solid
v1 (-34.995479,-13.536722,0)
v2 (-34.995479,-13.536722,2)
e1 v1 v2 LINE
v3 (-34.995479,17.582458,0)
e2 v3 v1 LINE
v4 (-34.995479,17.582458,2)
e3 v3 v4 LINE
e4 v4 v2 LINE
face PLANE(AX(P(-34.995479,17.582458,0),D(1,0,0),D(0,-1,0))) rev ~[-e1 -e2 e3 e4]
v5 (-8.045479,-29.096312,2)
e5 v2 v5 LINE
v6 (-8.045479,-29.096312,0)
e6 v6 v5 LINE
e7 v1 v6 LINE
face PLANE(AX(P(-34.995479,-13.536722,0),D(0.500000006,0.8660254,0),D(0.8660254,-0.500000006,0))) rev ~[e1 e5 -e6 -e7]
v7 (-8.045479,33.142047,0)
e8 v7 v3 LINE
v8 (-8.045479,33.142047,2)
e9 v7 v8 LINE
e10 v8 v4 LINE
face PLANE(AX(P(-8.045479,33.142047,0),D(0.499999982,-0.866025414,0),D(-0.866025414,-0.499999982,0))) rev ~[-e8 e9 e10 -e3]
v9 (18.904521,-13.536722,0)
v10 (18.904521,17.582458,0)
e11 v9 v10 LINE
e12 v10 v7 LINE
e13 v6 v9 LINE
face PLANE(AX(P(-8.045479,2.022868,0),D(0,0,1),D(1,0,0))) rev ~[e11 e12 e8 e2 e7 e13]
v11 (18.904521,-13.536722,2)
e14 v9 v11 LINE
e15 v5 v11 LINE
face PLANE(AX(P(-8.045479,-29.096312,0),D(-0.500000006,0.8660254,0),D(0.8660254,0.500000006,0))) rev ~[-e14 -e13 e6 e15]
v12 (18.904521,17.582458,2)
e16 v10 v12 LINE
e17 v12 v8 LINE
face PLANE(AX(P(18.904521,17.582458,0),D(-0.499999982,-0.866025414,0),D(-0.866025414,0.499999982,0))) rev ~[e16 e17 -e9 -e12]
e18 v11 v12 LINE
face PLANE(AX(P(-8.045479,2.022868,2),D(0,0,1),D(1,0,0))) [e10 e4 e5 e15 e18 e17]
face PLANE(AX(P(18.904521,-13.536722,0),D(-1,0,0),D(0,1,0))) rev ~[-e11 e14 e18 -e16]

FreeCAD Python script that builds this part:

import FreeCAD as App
import Part
import Sketcher
Q = App.Units.Quantity


def add_polygon(sketch, points):
    """Adds a closed chain of lines whose ends are joined by coincident constraints."""
    first, n = sketch.GeometryCount, len(points)
    for a, b in zip(points, points[1:] + points[:1]):
        sketch.addGeometry(Part.LineSegment(App.Vector(*a, 0), App.Vector(*b, 0)), False)
    for i in range(n):
        sketch.addConstraint(Sketcher.Constraint("Coincident", first + i, 2, first + (i + 1) % n, 1))

doc = App.newDocument("Part")
body = doc.addObject("PartDesign::Body", "Body")

sketch1 = body.newObject("Sketcher::SketchObject", "Sketch")
sketch1.AttachmentSupport = (doc.getObject("XY_Plane"), [""])
sketch1.MapMode = "FlatFace"
add_polygon(sketch1, [(19, -14), (19, 18), (-8, 33), (-35, 18), (-35, -14), (-8, -29)])
sketch1.addConstraint([
    Sketcher.Constraint("Vertical", 0),
    Sketcher.Constraint("Vertical", 3),
    Sketcher.Constraint("Parallel", 1, 4),
    Sketcher.Constraint("Parallel", 2, 5),
    Sketcher.Constraint("Horizontal", 0, 2, 2, 2),
    Sketcher.Constraint("Horizontal", 3, 2, 5, 2),
    Sketcher.Constraint("Vertical", 1, 2, 4, 2),
    Sketcher.Constraint("Angle", 1, Q("150.000001 deg")),
    Sketcher.Constraint("DistanceX", 2, 2, 0, 2, 53.9),
    Sketcher.Constraint("DistanceY", 0, 1, 0, 2, 31.11918),
    Sketcher.Constraint("DistanceX", -1, 1, 0, 2, 18.904521),
    Sketcher.Constraint("DistanceY", 3, 2, -1, 1, 13.536722),
])
pad1 = body.newObject("PartDesign::Pad", "Pad")
pad1.Profile = sketch1
pad1.Length = 2

doc.recompute()
